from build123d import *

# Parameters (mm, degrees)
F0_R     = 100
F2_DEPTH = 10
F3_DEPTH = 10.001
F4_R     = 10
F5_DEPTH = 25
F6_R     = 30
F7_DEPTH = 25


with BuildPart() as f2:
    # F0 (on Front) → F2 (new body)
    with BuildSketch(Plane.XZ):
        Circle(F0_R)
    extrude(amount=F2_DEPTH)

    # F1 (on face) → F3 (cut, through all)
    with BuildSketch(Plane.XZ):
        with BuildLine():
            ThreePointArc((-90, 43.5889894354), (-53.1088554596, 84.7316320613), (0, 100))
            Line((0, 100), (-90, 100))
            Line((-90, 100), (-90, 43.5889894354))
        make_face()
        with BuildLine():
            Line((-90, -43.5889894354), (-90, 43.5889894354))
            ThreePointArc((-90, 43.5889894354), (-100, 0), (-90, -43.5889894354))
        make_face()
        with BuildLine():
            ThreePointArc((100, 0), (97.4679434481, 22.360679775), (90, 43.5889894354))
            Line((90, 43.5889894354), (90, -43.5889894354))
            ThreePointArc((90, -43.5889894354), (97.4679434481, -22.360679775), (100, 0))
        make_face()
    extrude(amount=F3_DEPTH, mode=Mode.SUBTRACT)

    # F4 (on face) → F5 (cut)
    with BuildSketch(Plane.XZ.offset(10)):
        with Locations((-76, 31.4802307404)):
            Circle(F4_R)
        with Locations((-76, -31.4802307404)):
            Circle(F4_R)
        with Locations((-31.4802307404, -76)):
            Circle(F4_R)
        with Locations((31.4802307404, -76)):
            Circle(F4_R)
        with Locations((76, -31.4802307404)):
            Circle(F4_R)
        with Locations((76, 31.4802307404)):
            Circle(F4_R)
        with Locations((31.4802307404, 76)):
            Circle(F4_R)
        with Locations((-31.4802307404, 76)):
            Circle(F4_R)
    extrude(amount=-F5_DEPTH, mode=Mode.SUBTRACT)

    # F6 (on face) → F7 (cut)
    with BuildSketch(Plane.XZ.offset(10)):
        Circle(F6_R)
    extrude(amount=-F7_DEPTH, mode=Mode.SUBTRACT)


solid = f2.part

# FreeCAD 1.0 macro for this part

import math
import FreeCAD as App
import Part
import Sketcher

V = App.Vector

doc = App.newDocument("Part")
body = doc.addObject("PartDesign::Body", "Body")

# Sketch on XZ plane
sketch1 = doc.addObject("Sketcher::SketchObject", "Sketch")
body.addObject(sketch1)
sketch1.AttachmentSupport = (doc.XZ_Plane, [""])
sketch1.MapMode = "FlatFace"
sketch1.addGeometry(Part.Circle(V(0, 0, 0), V(0, 0, 1), 100), False)
sketch1.addConstraint(Sketcher.Constraint("Coincident", 0, 3, -1, 1))
sketch1.addConstraint(Sketcher.Constraint("Diameter", 0, 200.0))
pad1 = doc.addObject("PartDesign::Pad", "Pad")
body.addObject(pad1)
pad1.Profile = sketch1
pad1.Length = 10

# Sketch on XZ plane
sketch2 = doc.addObject("Sketcher::SketchObject", "Sketch001")
body.addObject(sketch2)
sketch2.AttachmentSupport = (doc.XZ_Plane, [""])
sketch2.MapMode = "FlatFace"
sketch2.addGeometry(Part.ArcOfCircle(Part.Circle(V(0, 0, 0), V(0, 0, 1), 100), math.radians(90), math.radians(154)), False)
sketch2.addGeometry(Part.LineSegment(V(0, 100, 0), V(-90, 100, 0)), False)
sketch2.addGeometry(Part.LineSegment(V(-90, 100, 0), V(-90, 44, 0)), False)
sketch2.addGeometry(Part.LineSegment(V(-90, -44, 0), V(-90, 44, 0)), False)
sketch2.addGeometry(Part.ArcOfCircle(Part.Circle(V(0, 0, 0), V(0, 0, 1), 100), math.radians(154), math.radians(206)), False)
sketch2.addGeometry(Part.ArcOfCircle(Part.Circle(V(0, 0, 0), V(0, 0, 1), 100), math.radians(0), math.radians(26)), False)
sketch2.addGeometry(Part.LineSegment(V(90, 44, 0), V(90, -44, 0)), False)
sketch2.addGeometry(Part.ArcOfCircle(Part.Circle(V(0, 0, 0), V(0, 0, 1), 100), math.radians(-26), math.radians(0)), False)
sketch2.addConstraint(Sketcher.Constraint("Tangent", 0, 1, 1, 1))
sketch2.addConstraint(Sketcher.Constraint("Coincident", 1, 2, 2, 1))
sketch2.addConstraint(Sketcher.Constraint("Coincident", 2, 2, 0, 2))
sketch2.addConstraint(Sketcher.Constraint("Coincident", 3, 1, 4, 2))
sketch2.addConstraint(Sketcher.Constraint("Coincident", 4, 1, 3, 2))
sketch2.addConstraint(Sketcher.Constraint("Coincident", 5, 2, 6, 1))
sketch2.addConstraint(Sketcher.Constraint("Coincident", 6, 2, 7, 1))
sketch2.addConstraint(Sketcher.Constraint("Tangent", 7, 2, 5, 1))
sketch2.addConstraint(Sketcher.Constraint("Horizontal", 1))
sketch2.addConstraint(Sketcher.Constraint("Vertical", 2))
sketch2.addConstraint(Sketcher.Constraint("Vertical", 3))
sketch2.addConstraint(Sketcher.Constraint("Vertical", 6))
sketch2.addConstraint(Sketcher.Constraint("Coincident", 0, 3, -1, 1))
sketch2.addConstraint(Sketcher.Constraint("Coincident", 4, 3, -1, 1))
sketch2.addConstraint(Sketcher.Constraint("Coincident", 5, 3, -1, 1))
sketch2.addConstraint(Sketcher.Constraint("Coincident", 4, 1, 2, 2))
sketch2.addConstraint(Sketcher.Constraint("Equal", 4, 5))
sketch2.addConstraint(Sketcher.Constraint("Equal", 5, 7))
sketch2.addConstraint(Sketcher.Constraint("PointOnObject", 7, 2, -1))
sketch2.addConstraint(Sketcher.Constraint("Horizontal", 4, 1, 5, 2))
sketch2.addConstraint(Sketcher.Constraint("Radius", 0, 100.0))
sketch2.addConstraint(Sketcher.Constraint("DistanceX", 1, 2, 1, 1, 90.0))
pocket1 = doc.addObject("PartDesign::Pocket", "Pocket")
body.addObject(pocket1)
pocket1.Profile = sketch2
pocket1.Type = "ThroughAll"
pocket1.Reversed = True

# Sketch on XZ plane
sketch3 = doc.addObject("Sketcher::SketchObject", "Sketch002")
body.addObject(sketch3)
sketch3.AttachmentSupport = (doc.XZ_Plane, [""])
sketch3.MapMode = "FlatFace"
sketch3.AttachmentOffset = App.Placement(V(0, 0, 10), App.Rotation())
sketch3.addGeometry(Part.Circle(V(-76, 31, 0), V(0, 0, 1), 10), False)
sketch3.addGeometry(Part.Circle(V(-76, -31, 0), V(0, 0, 1), 10), False)
sketch3.addGeometry(Part.Circle(V(-31, -76, 0), V(0, 0, 1), 10), False)
sketch3.addGeometry(Part.Circle(V(31, -76, 0), V(0, 0, 1), 10), False)
sketch3.addGeometry(Part.Circle(V(76, -31, 0), V(0, 0, 1), 10), False)
sketch3.addGeometry(Part.Circle(V(76, 31, 0), V(0, 0, 1), 10), False)
sketch3.addGeometry(Part.Circle(V(31, 76, 0), V(0, 0, 1), 10), False)
sketch3.addGeometry(Part.Circle(V(-31, 76, 0), V(0, 0, 1), 10), False)
sketch3.addConstraint(Sketcher.Constraint("Equal", 0, 1))
sketch3.addConstraint(Sketcher.Constraint("Equal", 1, 2))
sketch3.addConstraint(Sketcher.Constraint("Equal", 2, 3))
sketch3.addConstraint(Sketcher.Constraint("Equal", 3, 4))
sketch3.addConstraint(Sketcher.Constraint("Equal", 4, 5))
sketch3.addConstraint(Sketcher.Constraint("Equal", 5, 6))
sketch3.addConstraint(Sketcher.Constraint("Equal", 6, 7))
sketch3.addConstraint(Sketcher.Constraint("Symmetric", 0, 3, 4, 3, -1, 1))
sketch3.addConstraint(Sketcher.Constraint("Symmetric", 1, 3, 5, 3, -1, 1))
sketch3.addConstraint(Sketcher.Constraint("Symmetric", 2, 3, 6, 3, -1, 1))
sketch3.addConstraint(Sketcher.Constraint("Symmetric", 3, 3, 7, 3, -1, 1))
sketch3.addConstraint(Sketcher.Constraint("Symmetric", 2, 3, 3, 3, -2))
sketch3.addConstraint(Sketcher.Constraint("Symmetric", 1, 3, 4, 3, -2))
sketch3.addConstraint(Sketcher.Constraint("Diameter", 0, 20.0))
sketch3.addConstraint(Sketcher.Constraint("DistanceX", 0, 3, -1, 1, 76.0))
sketch3.addConstraint(Sketcher.Constraint("DistanceY", 2, 3, -1, 1, 76.0))
sketch3.addConstraint(Sketcher.Constraint("DistanceY", -1, 1, 0, 3, 31.480231))
sketch3.addConstraint(Sketcher.Constraint("DistanceX", 2, 3, -1, 1, 31.480231))
pocket2 = doc.addObject("PartDesign::Pocket", "Pocket001")
body.addObject(pocket2)
pocket2.Profile = sketch3
pocket2.Length = 25

# Sketch on XZ plane
sketch4 = doc.addObject("Sketcher::SketchObject", "Sketch003")
body.addObject(sketch4)
sketch4.AttachmentSupport = (doc.XZ_Plane, [""])
sketch4.MapMode = "FlatFace"
sketch4.AttachmentOffset = App.Placement(V(0, 0, 10), App.Rotation())
sketch4.addGeometry(Part.Circle(V(0, 0, 0), V(0, 0, 1), 30), False)
sketch4.addConstraint(Sketcher.Constraint("Coincident", 0, 3, -1, 1))
sketch4.addConstraint(Sketcher.Constraint("Diameter", 0, 60.0))
pocket3 = doc.addObject("PartDesign::Pocket", "Pocket002")
body.addObject(pocket3)
pocket3.Profile = sketch4
pocket3.Length = 25

doc.recompute()
